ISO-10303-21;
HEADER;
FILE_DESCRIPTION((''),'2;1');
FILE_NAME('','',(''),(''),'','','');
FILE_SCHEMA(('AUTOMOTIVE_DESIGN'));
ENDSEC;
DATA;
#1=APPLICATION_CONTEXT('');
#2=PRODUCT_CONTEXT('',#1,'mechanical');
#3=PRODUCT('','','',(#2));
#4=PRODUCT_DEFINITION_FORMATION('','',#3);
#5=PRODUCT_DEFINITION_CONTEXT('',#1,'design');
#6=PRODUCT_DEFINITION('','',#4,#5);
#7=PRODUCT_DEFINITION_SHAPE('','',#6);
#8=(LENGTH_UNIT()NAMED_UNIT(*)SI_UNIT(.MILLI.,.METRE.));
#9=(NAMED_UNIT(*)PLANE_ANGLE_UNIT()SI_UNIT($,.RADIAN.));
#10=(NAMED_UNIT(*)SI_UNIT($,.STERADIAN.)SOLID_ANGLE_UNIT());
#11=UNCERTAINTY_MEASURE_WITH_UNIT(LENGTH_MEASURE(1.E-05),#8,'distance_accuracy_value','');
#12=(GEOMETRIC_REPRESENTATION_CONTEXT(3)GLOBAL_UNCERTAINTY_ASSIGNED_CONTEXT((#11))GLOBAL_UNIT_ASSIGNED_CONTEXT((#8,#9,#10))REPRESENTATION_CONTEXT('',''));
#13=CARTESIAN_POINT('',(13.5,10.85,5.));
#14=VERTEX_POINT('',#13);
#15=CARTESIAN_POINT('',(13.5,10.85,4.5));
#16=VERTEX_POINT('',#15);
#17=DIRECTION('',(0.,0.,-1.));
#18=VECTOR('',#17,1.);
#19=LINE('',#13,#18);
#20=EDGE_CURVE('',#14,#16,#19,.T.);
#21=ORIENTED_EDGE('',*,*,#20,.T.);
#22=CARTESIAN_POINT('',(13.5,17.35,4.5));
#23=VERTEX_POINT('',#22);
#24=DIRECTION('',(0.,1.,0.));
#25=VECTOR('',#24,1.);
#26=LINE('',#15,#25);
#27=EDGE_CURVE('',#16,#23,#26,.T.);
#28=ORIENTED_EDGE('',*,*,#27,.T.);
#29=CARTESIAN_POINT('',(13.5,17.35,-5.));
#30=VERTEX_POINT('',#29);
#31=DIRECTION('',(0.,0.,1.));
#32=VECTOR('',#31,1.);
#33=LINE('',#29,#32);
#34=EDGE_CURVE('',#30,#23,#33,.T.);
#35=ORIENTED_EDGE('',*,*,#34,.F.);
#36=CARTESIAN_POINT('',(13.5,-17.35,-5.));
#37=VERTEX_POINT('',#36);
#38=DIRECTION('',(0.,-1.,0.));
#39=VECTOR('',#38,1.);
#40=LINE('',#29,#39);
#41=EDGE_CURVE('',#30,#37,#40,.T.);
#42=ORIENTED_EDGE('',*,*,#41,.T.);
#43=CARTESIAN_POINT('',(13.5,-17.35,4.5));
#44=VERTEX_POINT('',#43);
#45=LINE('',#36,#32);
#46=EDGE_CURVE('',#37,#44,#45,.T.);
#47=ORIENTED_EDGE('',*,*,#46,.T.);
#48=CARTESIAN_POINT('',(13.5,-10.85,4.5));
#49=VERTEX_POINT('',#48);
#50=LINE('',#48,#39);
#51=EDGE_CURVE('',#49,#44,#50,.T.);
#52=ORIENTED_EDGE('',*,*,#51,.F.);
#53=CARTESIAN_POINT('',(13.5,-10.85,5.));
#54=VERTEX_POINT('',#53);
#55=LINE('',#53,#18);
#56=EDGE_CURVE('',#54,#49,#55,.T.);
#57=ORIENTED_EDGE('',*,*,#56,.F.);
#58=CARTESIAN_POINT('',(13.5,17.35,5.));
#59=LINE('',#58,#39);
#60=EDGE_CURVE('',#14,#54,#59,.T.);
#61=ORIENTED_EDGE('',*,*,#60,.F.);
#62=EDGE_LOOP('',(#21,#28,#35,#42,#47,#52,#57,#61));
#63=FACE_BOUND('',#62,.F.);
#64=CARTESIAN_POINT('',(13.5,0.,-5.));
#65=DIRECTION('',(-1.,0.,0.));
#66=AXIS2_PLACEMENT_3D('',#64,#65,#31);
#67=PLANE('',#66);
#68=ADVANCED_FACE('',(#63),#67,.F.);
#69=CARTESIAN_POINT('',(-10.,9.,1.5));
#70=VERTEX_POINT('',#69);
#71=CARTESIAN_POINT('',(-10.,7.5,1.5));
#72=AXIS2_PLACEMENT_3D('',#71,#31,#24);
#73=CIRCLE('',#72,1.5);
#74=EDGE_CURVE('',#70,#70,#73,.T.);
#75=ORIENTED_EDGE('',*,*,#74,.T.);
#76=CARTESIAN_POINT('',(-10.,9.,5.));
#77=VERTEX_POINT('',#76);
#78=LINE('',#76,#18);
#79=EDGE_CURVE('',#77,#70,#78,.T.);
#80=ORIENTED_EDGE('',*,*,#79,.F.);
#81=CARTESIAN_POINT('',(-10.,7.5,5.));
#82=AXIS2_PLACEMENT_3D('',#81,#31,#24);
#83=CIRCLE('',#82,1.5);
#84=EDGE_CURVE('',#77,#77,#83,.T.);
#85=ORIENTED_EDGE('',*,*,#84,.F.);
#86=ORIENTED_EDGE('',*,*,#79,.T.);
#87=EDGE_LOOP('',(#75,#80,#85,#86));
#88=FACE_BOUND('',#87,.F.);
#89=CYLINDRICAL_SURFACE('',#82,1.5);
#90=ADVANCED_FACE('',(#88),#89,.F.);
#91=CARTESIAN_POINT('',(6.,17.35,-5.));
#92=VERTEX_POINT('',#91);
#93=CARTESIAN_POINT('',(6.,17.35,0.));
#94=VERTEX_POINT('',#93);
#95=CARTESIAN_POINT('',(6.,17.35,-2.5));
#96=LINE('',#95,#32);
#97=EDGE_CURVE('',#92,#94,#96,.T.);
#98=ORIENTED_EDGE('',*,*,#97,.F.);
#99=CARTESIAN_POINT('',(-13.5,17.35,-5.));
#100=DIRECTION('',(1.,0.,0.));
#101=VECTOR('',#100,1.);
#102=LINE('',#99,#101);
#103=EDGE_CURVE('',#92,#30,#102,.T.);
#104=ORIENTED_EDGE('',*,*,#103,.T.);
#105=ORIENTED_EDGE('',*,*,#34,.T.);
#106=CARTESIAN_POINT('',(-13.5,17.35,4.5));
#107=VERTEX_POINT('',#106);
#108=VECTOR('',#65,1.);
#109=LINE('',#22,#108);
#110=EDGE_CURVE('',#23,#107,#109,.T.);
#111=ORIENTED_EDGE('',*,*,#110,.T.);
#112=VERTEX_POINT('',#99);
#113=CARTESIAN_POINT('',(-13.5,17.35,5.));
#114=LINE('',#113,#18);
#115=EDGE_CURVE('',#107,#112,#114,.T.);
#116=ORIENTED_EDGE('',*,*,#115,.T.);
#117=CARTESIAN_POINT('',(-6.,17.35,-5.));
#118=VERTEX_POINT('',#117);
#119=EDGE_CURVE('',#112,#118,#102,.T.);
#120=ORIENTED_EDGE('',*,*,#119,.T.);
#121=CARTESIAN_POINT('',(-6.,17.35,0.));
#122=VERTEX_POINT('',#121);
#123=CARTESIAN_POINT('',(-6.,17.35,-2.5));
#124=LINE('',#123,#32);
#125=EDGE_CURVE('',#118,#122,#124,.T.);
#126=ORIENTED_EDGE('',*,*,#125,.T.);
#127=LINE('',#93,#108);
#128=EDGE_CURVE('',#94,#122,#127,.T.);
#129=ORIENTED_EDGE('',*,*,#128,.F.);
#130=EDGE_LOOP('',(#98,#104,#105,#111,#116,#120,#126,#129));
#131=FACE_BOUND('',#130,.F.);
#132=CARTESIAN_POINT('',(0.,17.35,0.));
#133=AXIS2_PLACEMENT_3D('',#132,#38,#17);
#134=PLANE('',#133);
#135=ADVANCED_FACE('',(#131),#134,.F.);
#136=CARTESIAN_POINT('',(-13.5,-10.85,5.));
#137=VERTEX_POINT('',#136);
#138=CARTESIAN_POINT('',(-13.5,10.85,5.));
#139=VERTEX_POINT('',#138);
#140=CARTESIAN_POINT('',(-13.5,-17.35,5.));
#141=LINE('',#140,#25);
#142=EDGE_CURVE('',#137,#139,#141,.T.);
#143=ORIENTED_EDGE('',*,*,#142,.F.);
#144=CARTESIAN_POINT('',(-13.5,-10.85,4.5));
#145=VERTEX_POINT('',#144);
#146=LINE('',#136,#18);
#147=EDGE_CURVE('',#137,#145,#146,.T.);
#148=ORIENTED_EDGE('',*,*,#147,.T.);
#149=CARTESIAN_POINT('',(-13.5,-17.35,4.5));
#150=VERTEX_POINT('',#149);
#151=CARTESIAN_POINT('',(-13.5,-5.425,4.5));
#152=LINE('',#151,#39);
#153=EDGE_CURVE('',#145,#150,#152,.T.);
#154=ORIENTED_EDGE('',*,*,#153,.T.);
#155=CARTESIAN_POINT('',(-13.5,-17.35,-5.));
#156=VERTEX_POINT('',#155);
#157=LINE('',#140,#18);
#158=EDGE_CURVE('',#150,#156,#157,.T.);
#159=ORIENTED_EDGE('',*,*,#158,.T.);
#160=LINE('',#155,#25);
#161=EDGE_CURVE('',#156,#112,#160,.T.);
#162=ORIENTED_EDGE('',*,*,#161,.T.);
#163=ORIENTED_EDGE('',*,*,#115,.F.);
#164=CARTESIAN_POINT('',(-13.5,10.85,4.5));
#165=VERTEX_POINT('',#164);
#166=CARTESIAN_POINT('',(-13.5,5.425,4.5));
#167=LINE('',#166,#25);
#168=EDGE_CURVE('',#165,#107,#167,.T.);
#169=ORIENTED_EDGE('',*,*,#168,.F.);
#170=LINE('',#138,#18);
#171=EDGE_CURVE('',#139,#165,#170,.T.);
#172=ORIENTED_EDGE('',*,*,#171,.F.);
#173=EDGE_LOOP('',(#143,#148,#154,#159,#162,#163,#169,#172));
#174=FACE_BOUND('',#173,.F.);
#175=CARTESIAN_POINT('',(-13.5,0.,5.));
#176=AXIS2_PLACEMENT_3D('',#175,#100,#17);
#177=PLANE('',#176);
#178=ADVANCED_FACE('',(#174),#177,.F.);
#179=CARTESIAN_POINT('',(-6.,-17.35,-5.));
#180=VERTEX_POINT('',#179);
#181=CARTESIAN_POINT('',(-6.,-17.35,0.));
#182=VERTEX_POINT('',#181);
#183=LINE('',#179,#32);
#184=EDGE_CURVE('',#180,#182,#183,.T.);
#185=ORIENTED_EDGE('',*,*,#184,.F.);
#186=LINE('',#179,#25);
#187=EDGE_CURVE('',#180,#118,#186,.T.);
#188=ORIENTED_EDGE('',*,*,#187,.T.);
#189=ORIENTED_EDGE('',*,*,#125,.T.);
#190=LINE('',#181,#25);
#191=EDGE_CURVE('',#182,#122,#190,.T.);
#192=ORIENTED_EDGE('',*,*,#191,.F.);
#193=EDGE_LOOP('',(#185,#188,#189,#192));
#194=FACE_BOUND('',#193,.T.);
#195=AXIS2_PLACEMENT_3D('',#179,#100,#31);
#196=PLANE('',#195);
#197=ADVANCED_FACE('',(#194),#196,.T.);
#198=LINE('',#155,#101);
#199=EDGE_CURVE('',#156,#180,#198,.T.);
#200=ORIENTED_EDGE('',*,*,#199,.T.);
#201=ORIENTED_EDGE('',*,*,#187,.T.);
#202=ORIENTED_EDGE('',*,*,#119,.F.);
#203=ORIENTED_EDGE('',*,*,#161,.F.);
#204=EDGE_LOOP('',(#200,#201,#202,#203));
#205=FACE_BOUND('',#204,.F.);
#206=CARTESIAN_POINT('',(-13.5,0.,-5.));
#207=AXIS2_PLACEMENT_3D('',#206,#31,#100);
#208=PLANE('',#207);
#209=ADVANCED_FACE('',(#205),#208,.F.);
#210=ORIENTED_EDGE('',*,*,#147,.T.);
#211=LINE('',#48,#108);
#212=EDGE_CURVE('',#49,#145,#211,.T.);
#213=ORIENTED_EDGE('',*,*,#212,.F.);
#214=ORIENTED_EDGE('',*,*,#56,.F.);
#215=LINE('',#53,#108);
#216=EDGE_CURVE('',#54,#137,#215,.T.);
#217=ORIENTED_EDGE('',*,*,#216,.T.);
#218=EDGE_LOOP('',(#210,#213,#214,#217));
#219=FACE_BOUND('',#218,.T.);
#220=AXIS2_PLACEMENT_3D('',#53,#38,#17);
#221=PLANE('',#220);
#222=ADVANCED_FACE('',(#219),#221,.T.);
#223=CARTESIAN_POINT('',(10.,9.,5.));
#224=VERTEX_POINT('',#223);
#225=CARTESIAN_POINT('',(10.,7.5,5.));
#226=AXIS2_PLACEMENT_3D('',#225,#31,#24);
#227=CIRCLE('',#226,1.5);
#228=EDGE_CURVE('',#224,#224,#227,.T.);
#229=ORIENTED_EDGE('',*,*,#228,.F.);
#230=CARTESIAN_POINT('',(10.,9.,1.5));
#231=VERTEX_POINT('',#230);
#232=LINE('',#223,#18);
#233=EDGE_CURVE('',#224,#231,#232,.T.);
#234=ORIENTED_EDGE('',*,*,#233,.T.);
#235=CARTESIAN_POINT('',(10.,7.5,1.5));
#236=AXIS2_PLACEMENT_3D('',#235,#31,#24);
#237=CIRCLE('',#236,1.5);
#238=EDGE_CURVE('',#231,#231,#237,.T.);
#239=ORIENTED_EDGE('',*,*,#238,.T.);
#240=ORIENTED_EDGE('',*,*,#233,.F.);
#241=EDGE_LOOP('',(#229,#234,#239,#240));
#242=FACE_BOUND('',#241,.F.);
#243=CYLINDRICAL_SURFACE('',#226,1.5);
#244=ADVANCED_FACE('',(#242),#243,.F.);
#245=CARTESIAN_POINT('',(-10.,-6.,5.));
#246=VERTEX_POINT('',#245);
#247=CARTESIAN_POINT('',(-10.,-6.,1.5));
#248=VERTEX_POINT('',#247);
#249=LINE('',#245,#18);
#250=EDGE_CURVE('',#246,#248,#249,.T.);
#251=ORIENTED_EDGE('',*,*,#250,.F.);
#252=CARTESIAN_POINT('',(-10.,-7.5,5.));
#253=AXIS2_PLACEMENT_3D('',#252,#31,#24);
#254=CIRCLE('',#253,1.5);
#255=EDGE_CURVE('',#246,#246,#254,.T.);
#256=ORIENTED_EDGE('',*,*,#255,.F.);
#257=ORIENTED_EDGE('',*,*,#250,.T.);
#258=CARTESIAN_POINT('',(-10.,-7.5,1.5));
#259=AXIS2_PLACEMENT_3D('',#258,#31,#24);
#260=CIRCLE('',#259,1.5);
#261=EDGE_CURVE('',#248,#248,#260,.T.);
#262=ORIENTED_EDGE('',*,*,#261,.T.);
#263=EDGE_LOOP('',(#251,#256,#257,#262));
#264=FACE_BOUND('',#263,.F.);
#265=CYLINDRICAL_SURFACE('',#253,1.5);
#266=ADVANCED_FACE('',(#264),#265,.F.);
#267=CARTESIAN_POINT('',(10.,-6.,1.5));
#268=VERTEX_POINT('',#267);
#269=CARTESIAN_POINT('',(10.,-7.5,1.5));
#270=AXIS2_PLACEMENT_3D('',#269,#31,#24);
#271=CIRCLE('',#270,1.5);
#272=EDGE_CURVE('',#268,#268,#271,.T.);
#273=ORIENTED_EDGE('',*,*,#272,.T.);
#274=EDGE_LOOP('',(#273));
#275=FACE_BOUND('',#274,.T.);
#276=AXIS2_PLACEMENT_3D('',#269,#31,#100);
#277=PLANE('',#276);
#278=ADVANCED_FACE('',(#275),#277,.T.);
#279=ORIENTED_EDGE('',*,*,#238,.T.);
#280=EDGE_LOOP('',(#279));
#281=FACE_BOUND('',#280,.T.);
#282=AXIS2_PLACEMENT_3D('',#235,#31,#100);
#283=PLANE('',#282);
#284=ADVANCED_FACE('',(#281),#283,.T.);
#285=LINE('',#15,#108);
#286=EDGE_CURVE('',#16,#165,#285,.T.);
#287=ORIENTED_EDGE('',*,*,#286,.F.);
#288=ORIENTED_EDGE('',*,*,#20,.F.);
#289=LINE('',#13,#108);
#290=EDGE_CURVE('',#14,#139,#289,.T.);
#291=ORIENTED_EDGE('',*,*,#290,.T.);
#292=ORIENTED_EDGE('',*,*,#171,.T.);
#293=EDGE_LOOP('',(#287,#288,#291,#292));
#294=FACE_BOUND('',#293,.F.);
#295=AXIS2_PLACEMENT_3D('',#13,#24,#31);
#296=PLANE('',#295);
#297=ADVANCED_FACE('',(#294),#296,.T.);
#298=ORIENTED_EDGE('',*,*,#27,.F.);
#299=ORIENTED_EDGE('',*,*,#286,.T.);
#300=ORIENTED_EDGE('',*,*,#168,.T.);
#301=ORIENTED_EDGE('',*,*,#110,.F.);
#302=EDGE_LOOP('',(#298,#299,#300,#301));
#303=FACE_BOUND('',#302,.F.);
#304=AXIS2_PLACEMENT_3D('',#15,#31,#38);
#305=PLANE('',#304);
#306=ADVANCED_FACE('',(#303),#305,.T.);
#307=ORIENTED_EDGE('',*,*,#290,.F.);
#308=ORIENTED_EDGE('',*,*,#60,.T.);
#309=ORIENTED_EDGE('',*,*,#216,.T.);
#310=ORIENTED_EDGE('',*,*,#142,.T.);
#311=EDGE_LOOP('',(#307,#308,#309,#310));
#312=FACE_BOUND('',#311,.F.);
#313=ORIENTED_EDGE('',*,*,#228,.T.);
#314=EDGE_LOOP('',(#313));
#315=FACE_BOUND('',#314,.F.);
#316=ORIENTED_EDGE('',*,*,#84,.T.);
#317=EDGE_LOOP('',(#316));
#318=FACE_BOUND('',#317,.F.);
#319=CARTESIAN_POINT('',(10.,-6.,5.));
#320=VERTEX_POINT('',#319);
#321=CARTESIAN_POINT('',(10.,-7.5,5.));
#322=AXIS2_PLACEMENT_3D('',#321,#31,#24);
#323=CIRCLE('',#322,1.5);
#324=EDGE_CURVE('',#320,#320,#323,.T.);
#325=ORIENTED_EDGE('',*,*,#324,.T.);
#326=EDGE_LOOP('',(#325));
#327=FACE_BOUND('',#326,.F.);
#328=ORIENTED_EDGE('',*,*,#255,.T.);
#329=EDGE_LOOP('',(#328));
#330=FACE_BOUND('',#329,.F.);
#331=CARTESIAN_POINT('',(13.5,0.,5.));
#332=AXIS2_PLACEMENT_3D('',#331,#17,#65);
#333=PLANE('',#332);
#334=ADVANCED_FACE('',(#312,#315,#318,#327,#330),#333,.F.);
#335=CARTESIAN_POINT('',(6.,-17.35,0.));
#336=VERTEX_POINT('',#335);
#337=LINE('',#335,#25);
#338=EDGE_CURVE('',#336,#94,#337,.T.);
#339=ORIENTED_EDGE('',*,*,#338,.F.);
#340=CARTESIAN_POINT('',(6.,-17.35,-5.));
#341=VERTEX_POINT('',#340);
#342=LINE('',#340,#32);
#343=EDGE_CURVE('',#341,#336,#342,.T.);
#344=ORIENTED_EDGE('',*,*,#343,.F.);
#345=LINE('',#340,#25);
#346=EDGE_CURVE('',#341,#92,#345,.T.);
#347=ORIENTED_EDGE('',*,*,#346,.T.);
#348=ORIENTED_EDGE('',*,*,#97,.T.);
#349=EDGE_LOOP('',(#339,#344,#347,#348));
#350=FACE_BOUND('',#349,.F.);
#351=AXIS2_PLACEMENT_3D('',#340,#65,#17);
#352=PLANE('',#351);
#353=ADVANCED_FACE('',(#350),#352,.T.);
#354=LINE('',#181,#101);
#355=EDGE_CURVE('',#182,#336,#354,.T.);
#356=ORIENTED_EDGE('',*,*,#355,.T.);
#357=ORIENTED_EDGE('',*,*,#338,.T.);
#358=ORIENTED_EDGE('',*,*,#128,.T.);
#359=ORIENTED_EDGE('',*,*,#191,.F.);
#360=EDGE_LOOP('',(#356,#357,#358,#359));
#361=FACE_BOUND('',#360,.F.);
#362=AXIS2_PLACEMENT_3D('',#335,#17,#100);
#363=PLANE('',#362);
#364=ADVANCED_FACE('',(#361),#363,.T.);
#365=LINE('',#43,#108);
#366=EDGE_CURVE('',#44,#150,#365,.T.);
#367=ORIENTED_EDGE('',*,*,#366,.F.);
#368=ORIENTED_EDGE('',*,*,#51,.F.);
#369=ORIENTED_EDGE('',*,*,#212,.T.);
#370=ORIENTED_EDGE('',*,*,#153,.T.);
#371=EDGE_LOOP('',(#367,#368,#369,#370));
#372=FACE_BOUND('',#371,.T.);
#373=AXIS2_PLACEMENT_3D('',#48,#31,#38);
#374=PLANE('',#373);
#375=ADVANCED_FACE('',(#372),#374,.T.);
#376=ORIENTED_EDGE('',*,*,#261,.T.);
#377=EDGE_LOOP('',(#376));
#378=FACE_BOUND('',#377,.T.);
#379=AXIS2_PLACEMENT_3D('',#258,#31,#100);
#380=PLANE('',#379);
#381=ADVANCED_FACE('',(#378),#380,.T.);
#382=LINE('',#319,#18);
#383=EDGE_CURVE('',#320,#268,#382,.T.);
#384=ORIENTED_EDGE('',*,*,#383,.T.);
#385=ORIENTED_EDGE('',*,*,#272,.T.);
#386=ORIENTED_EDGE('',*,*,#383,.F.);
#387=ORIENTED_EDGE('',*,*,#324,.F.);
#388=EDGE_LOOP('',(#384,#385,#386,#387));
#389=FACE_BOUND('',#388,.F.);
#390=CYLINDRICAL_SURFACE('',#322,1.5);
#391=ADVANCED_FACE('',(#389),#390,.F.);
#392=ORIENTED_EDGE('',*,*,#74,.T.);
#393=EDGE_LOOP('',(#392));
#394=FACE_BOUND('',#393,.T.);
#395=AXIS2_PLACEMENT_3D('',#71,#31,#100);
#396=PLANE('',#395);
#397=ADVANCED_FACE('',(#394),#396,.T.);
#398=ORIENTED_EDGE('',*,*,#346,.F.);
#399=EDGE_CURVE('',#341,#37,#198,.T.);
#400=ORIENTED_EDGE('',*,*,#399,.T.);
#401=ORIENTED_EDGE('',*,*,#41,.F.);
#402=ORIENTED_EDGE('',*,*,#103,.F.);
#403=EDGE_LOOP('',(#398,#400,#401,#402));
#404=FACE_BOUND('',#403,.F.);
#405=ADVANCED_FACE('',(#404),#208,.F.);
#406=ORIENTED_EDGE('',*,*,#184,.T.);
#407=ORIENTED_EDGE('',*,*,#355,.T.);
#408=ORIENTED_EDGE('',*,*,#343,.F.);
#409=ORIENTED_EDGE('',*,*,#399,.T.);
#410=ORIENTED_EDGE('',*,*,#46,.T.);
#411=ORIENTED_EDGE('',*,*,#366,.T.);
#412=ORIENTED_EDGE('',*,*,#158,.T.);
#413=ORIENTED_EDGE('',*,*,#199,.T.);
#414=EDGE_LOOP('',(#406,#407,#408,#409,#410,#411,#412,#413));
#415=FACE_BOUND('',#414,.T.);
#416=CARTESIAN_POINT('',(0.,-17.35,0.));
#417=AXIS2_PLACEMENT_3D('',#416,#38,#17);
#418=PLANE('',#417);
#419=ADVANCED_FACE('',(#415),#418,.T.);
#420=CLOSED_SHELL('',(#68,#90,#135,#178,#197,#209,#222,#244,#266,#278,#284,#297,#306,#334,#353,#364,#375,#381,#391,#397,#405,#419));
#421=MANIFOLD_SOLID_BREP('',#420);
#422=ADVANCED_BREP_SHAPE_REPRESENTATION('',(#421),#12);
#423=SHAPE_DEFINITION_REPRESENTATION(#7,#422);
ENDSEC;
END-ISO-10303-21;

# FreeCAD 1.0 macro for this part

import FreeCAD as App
import Part
import Sketcher

V = App.Vector
Q = App.Units.Quantity

doc = App.newDocument("Part")
params = doc.addObject("Spreadsheet::Sheet", "Params")
for row, (alias, value) in enumerate([
    ("sketch1_height", "10 mm"),
    ("pad1_length", "34.7 mm"),
    ("sketch2_width", "6.5 mm"),
    ("sketch2_height", "0.5 mm"),
    ("sketch3_width", "6 mm"),
    ("sketch3_height", "5 mm"),
    ("sketch4_diameter", "3 mm"),
    ("pocket3_length", "3.5 mm"),
], start=1):
    params.set(f"A{row}", alias)
    params.set(f"B{row}", "=" + value)
    params.setAlias(f"B{row}", alias)

body = doc.addObject("PartDesign::Body", "Body")

# Sketch on XZ plane
sketch1 = body.newObject("Sketcher::SketchObject", "Sketch")
sketch1.AttachmentSupport = (doc.getObject("XZ_Plane"), [""])
sketch1.MapMode = "FlatFace"
sketch1.addGeometry([
    Part.LineSegment(V(-13.5, 5, 0), V(-13.5, -5, 0)),
    Part.LineSegment(V(-13.5, -5, 0), V(13.5, -5, 0)),
    Part.LineSegment(V(13.5, -5, 0), V(13.5, 5, 0)),
    Part.LineSegment(V(13.5, 5, 0), V(-13.5, 5, 0)),
], False)
sketch1.addConstraint([
    Sketcher.Constraint("Coincident", 0, 2, 1, 1),
    Sketcher.Constraint("Coincident", 1, 2, 2, 1),
    Sketcher.Constraint("Coincident", 2, 2, 3, 1),
    Sketcher.Constraint("Coincident", 3, 2, 0, 1),
    Sketcher.Constraint("Vertical", 0),
    Sketcher.Constraint("Horizontal", 1),
    Sketcher.Constraint("Vertical", 2),
    Sketcher.Constraint("Horizontal", 3),
    Sketcher.Constraint("Symmetric", 0, 2, 2, 2, -1, 1),
    Sketcher.Constraint("DistanceX", 0, 2, -1, 1, Q("13.5 mm")),
    Sketcher.Constraint("DistanceY", 0, 2, 0, 1, Q("10 mm")),
])
sketch1.setExpression("Constraints[10]", "Params.sketch1_height")
pad1 = body.newObject("PartDesign::Pad", "Pad")
pad1.Profile = sketch1
pad1.setExpression("Length", "Params.pad1_length")
pad1.Midplane = True

# Sketch on YZ plane
sketch2 = body.newObject("Sketcher::SketchObject", "Sketch001")
sketch2.AttachmentSupport = (doc.getObject("YZ_Plane"), [""])
sketch2.MapMode = "FlatFace"
sketch2.AttachmentOffset = App.Placement(V(0, 0, 13.5), App.Rotation())
sketch2.addGeometry([
    Part.LineSegment(V(-10.85, 5, 0), V(-17.35, 5, 0)),
    Part.LineSegment(V(-17.35, 5, 0), V(-17.35, 4.5, 0)),
    Part.LineSegment(V(-17.35, 4.5, 0), V(-10.85, 4.5, 0)),
    Part.LineSegment(V(-10.85, 4.5, 0), V(-10.85, 5, 0)),
], False)
sketch2.addConstraint([
    Sketcher.Constraint("Coincident", 0, 2, 1, 1),
    Sketcher.Constraint("Coincident", 1, 2, 2, 1),
    Sketcher.Constraint("Coincident", 2, 2, 3, 1),
    Sketcher.Constraint("Coincident", 3, 2, 0, 1),
    Sketcher.Constraint("Horizontal", 0),
    Sketcher.Constraint("Vertical", 1),
    Sketcher.Constraint("Horizontal", 2),
    Sketcher.Constraint("Vertical", 3),
    Sketcher.Constraint("DistanceX", 0, 2, -1, 1, Q("17.35 mm")),
    Sketcher.Constraint("DistanceX", 0, 2, 0, 1, Q("6.5 mm")),
    Sketcher.Constraint("DistanceY", 1, 2, 1, 1, Q("0.5 mm")),
    Sketcher.Constraint("DistanceY", -1, 1, 0, 2, Q("5 mm")),
])
sketch2.setExpression("Constraints[9]", "Params.sketch2_width")
sketch2.setExpression("Constraints[10]", "Params.sketch2_height")
pocket1 = body.newObject("PartDesign::Pocket", "Pocket")
pocket1.Profile = sketch2
pocket1.Type = "ThroughAll"
doc.recompute()

mirrored = body.newObject("PartDesign::Mirrored", "Mirrored")
mirrored.Originals = [pocket1]
mirrored.MirrorPlane = (doc.getObject("XZ_Plane"), [""])
body.Tip = mirrored

# Sketch on XZ plane
sketch3 = body.newObject("Sketcher::SketchObject", "Sketch002")
sketch3.AttachmentSupport = (doc.getObject("XZ_Plane"), [""])
sketch3.MapMode = "FlatFace"
sketch3.AttachmentOffset = App.Placement(V(0, 0, 17.35), App.Rotation())
sketch3.addGeometry([
    Part.LineSegment(V(-6, -5, 0), V(0, -5, 0)),
    Part.LineSegment(V(0, -5, 0), V(0, 0, 0)),
    Part.LineSegment(V(0, 0, 0), V(-6, 0, 0)),
    Part.LineSegment(V(-6, 0, 0), V(-6, -5, 0)),
], False)
sketch3.addConstraint([
    Sketcher.Constraint("Coincident", 0, 2, 1, 1),
    Sketcher.Constraint("Coincident", 1, 2, 2, 1),
    Sketcher.Constraint("Coincident", 2, 2, 3, 1),
    Sketcher.Constraint("Coincident", 3, 2, 0, 1),
    Sketcher.Constraint("Horizontal", 0),
    Sketcher.Constraint("Vertical", 1),
    Sketcher.Constraint("Horizontal", 2),
    Sketcher.Constraint("Vertical", 3),
    Sketcher.Constraint("Coincident", 1, 2, -1, 1),
    Sketcher.Constraint("DistanceX", 0, 1, 0, 2, Q("6 mm")),
    Sketcher.Constraint("DistanceY", 1, 1, 1, 2, Q("5 mm")),
])
sketch3.setExpression("Constraints[9]", "Params.sketch3_width")
sketch3.setExpression("Constraints[10]", "Params.sketch3_height")
pocket2 = body.newObject("PartDesign::Pocket", "Pocket001")
pocket2.Profile = sketch3
pocket2.Type = "ThroughAll"
doc.recompute()

mirrored2 = body.newObject("PartDesign::Mirrored", "Mirrored001")
mirrored2.Originals = [pocket2]
mirrored2.MirrorPlane = (doc.getObject("YZ_Plane"), [""])
body.Tip = mirrored2

# Sketch on XY plane
sketch4 = body.newObject("Sketcher::SketchObject", "Sketch003")
sketch4.AttachmentSupport = (doc.getObject("XY_Plane"), [""])
sketch4.MapMode = "FlatFace"
sketch4.AttachmentOffset = App.Placement(V(0, 0, 5), App.Rotation())
sketch4.addGeometry([
    Part.Circle(V(-10, -7.5, 0), V(0, 0, 1), 1.5),
    Part.Circle(V(-10, 7.5, 0), V(0, 0, 1), 1.5),
    Part.Circle(V(10, 7.5, 0), V(0, 0, 1), 1.5),
    Part.Circle(V(10, -7.5, 0), V(0, 0, 1), 1.5),
], False)
sketch4.addConstraint([
    Sketcher.Constraint("Equal", 0, 1),
    Sketcher.Constraint("Equal", 1, 2),
    Sketcher.Constraint("Equal", 2, 3),
    Sketcher.Constraint("Symmetric", 0, 3, 2, 3, -1, 1),
    Sketcher.Constraint("Symmetric", 1, 3, 3, 3, -1, 1),
    Sketcher.Constraint("Symmetric", 1, 3, 2, 3, -2),
    Sketcher.Constraint("Diameter", 0, Q("3 mm")),
    Sketcher.Constraint("DistanceY", 0, 3, -1, 1, Q("7.5 mm")),
    Sketcher.Constraint("DistanceX", 0, 3, -1, 1, Q("10 mm")),
])
sketch4.setExpression("Constraints[6]", "Params.sketch4_diameter")
pocket3 = body.newObject("PartDesign::Pocket", "Pocket002")
pocket3.Profile = sketch4
pocket3.setExpression("Length", "Params.pocket3_length")

doc.recompute()
